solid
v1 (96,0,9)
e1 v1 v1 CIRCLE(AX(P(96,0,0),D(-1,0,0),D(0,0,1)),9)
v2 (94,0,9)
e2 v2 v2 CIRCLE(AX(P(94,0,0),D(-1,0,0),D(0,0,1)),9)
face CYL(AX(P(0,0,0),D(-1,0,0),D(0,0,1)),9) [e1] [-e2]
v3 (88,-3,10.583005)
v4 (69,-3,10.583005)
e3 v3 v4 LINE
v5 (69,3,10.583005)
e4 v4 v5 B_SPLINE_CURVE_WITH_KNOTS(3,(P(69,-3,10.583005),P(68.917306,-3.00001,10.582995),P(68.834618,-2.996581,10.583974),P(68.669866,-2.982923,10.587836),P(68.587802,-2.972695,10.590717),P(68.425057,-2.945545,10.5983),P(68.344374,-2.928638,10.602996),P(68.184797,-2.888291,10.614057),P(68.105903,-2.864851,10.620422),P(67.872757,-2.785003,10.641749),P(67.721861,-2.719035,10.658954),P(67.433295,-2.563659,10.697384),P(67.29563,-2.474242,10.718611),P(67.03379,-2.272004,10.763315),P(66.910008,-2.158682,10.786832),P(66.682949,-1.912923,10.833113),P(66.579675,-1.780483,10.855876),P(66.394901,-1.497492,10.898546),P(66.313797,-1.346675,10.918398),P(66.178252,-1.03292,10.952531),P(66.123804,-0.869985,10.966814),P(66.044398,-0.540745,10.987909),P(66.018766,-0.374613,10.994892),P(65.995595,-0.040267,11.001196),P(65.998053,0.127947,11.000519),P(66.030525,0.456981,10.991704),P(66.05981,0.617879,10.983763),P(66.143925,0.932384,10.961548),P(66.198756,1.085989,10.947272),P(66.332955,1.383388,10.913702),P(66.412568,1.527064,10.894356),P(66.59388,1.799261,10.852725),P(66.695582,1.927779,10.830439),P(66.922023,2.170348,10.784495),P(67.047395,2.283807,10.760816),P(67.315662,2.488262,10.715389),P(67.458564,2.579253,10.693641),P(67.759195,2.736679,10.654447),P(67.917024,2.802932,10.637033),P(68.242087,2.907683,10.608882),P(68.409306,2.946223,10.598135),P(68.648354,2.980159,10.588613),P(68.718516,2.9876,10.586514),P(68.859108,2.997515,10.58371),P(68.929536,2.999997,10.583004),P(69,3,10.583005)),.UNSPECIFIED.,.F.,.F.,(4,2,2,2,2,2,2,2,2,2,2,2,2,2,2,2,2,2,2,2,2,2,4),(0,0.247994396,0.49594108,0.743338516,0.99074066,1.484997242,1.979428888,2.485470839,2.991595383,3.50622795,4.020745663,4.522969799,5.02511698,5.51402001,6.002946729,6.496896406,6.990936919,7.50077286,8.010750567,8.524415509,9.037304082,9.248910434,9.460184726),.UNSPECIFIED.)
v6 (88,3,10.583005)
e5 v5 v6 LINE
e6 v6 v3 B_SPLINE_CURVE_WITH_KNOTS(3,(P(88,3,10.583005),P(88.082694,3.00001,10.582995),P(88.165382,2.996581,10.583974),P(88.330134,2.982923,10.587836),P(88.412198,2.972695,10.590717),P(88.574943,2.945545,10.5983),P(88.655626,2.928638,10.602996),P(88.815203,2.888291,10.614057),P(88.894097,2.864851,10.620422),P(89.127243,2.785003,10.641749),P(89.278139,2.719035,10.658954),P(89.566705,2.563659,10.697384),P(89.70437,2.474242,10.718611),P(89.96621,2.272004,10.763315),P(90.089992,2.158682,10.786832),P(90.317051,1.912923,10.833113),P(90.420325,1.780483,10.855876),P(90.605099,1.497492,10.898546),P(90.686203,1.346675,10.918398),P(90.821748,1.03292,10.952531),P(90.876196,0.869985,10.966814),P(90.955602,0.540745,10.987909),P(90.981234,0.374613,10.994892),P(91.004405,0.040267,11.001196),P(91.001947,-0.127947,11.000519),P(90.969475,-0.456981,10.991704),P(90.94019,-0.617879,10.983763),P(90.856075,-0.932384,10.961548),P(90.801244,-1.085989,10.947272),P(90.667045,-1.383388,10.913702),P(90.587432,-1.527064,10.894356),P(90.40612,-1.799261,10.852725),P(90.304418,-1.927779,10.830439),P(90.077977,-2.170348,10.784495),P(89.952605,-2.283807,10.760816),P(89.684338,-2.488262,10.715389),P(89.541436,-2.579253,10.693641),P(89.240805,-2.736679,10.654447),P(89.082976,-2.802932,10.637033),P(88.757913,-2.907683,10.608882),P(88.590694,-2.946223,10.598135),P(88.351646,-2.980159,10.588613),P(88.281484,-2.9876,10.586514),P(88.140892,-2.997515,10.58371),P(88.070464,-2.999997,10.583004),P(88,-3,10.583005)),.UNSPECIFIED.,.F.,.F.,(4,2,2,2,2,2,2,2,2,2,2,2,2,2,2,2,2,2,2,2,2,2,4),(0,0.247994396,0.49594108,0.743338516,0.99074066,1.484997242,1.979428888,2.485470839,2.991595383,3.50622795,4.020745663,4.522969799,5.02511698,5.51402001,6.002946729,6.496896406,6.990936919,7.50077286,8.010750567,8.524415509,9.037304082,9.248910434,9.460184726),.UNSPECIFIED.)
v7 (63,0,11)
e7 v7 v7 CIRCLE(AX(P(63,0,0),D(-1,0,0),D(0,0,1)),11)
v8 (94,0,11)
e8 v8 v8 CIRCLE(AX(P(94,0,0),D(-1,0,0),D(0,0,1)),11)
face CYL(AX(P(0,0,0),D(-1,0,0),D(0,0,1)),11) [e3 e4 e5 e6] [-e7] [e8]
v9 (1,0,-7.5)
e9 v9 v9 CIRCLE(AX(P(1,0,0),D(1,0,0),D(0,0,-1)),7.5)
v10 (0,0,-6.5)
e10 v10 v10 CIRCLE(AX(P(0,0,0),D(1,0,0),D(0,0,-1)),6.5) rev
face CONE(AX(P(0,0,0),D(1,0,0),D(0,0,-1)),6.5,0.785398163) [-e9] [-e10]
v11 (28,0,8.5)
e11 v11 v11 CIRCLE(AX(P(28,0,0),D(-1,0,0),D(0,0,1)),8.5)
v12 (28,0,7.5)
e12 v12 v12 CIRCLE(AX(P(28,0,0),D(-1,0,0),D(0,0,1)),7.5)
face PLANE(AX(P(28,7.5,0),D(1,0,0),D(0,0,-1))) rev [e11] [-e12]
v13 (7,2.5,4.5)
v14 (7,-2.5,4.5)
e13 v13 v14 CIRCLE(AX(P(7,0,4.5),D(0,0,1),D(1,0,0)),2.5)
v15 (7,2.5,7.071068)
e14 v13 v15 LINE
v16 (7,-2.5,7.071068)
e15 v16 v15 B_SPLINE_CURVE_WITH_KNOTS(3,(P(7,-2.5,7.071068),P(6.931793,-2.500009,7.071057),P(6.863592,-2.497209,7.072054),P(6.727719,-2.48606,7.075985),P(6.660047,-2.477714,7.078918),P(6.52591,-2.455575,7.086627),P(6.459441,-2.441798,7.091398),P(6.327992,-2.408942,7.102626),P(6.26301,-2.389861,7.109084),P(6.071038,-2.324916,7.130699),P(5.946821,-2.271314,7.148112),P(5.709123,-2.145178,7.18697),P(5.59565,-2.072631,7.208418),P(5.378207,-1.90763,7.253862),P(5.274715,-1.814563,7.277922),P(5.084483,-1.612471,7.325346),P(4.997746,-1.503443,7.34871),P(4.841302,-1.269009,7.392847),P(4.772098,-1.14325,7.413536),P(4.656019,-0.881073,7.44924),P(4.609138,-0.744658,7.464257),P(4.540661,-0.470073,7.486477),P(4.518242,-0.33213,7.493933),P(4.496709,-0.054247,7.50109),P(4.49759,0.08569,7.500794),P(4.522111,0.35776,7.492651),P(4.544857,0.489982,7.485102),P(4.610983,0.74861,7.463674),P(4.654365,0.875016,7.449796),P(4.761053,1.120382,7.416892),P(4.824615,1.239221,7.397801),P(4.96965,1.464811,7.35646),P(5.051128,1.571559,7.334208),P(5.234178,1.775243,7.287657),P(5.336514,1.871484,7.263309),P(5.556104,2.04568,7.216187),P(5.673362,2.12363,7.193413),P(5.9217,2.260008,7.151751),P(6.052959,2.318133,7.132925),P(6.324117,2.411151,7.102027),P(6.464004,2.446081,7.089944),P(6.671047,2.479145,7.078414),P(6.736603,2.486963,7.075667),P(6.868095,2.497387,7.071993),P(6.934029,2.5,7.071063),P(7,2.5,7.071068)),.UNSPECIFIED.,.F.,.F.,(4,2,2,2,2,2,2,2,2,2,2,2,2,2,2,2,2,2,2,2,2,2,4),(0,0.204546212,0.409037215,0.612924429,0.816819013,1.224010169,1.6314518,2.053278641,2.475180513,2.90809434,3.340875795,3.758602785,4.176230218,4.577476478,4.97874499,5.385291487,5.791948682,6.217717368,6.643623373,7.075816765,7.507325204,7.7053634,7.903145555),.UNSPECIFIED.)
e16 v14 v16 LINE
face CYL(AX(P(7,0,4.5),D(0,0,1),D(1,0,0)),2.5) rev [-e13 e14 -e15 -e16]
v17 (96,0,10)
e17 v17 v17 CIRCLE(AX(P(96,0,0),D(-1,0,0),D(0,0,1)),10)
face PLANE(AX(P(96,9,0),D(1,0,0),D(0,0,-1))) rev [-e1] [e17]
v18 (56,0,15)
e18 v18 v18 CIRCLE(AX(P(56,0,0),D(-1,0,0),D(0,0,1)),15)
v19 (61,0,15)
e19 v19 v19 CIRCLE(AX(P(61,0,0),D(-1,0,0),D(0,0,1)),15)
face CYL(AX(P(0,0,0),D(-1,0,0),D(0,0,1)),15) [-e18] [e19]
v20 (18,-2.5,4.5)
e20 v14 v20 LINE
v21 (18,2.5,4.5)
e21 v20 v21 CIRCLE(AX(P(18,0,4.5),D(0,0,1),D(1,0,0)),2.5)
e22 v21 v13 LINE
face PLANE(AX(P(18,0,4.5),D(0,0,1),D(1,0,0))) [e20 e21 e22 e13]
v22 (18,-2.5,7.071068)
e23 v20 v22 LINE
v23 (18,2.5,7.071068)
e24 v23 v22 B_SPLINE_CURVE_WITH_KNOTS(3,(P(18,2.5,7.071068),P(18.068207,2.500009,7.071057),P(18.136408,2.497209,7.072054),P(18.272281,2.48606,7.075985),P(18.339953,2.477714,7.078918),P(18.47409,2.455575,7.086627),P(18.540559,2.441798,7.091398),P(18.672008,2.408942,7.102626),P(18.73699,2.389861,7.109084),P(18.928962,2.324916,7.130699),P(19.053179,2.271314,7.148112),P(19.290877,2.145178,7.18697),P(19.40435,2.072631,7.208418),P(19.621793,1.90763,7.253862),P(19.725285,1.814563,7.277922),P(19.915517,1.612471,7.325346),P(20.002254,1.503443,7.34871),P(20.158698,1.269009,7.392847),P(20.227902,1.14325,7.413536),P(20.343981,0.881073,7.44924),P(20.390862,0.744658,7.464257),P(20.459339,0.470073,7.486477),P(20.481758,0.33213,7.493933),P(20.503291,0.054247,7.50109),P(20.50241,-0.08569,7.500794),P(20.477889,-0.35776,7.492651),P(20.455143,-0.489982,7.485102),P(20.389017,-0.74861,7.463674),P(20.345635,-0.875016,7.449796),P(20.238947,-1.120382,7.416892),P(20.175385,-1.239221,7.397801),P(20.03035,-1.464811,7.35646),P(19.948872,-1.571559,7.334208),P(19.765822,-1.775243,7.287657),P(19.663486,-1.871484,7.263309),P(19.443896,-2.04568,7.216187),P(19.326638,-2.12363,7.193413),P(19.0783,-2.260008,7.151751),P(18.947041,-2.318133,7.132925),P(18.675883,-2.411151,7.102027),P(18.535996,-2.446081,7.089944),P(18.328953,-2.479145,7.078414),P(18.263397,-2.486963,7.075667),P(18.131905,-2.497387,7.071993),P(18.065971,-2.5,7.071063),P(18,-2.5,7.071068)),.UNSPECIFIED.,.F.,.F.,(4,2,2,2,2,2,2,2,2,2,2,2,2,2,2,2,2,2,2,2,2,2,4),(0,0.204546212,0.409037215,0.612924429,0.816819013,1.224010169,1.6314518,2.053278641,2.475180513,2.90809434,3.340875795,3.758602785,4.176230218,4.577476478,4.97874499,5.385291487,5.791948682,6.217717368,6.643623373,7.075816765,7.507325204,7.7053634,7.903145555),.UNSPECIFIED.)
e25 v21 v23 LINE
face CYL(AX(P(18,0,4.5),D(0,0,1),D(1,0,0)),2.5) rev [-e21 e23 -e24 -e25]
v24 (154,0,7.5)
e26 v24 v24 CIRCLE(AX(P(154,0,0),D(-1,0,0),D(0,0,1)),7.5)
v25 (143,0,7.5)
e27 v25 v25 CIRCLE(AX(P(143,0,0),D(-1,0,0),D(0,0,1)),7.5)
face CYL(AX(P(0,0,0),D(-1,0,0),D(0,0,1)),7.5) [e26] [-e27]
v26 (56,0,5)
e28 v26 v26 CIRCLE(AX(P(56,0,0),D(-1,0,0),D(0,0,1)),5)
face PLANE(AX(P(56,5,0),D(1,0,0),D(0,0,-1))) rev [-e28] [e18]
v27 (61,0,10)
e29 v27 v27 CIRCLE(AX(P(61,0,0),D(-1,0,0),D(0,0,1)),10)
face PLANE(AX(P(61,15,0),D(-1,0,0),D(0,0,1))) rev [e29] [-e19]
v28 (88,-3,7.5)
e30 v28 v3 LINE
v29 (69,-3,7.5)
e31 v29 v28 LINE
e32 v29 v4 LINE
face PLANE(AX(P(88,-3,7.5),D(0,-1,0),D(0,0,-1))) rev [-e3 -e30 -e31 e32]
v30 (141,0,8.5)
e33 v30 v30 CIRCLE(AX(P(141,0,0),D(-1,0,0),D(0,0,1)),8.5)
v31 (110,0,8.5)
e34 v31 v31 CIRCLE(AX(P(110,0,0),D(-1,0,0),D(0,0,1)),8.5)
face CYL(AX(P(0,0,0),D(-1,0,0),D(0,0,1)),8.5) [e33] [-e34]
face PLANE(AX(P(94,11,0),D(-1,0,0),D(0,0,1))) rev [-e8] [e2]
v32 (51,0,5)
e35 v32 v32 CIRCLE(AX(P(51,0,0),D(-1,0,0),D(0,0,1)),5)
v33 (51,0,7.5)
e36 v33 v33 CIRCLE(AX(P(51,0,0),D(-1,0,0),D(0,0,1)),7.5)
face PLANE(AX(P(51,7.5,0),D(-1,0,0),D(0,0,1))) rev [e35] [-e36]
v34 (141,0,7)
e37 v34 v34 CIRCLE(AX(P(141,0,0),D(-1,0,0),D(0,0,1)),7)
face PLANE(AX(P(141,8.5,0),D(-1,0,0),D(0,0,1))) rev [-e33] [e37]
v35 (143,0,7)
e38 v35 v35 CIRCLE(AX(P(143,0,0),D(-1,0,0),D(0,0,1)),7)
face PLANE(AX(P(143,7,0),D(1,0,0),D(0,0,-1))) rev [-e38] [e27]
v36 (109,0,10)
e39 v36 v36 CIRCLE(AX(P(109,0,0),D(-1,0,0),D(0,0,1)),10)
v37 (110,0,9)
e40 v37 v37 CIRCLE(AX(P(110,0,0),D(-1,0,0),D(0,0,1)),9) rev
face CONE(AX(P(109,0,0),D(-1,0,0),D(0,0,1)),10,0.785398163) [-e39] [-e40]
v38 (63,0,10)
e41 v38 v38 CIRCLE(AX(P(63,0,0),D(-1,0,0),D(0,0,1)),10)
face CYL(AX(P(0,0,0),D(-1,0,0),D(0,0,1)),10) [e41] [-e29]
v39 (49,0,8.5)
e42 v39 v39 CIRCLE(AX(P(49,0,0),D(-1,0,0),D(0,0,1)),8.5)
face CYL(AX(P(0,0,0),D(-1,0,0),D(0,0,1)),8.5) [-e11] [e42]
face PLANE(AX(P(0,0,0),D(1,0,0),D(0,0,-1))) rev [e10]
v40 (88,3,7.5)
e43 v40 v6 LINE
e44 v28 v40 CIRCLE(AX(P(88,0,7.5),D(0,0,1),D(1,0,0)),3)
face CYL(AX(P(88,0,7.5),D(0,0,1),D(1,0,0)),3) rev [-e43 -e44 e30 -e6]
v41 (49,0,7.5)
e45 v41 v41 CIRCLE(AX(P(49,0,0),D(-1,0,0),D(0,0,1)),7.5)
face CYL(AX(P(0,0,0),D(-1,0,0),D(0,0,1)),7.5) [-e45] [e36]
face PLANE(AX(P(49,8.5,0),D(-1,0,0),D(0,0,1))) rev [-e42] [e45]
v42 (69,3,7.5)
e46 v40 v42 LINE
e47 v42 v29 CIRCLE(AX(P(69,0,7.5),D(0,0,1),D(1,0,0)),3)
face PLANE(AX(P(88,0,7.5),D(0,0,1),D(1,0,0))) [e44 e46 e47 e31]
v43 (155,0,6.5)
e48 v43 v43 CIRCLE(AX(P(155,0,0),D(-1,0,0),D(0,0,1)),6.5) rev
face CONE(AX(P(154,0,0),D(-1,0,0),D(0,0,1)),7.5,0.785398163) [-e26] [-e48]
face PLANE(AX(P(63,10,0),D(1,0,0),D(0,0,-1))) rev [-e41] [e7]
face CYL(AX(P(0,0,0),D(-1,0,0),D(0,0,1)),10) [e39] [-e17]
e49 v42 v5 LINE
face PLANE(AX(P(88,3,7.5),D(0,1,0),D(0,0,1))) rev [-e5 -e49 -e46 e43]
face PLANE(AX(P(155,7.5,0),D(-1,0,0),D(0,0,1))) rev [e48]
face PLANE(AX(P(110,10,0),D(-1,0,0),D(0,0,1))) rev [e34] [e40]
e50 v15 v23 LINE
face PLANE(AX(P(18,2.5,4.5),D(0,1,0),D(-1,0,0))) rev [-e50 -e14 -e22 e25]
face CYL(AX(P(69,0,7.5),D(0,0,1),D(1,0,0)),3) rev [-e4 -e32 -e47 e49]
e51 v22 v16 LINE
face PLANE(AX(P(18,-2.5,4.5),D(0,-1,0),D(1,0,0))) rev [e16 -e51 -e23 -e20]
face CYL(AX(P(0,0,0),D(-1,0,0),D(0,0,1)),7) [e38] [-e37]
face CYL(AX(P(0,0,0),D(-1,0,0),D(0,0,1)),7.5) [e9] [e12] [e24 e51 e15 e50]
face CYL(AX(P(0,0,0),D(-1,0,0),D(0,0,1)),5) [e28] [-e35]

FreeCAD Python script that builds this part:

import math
import FreeCAD as App
import Part
import Sketcher
Q = App.Units.Quantity


def edges_at(feature, points):
    """Names of the edges that pass closest to the given points."""
    edges = feature.Shape.Edges
    near = lambda p: min(range(len(edges)), key=lambda i: edges[i].distToShape(Part.Vertex(*p))[0])
    return sorted({f"Edge{near(p) + 1}" for p in points})

doc = App.newDocument("Part")
body = doc.addObject("PartDesign::Body", "Body")

# Sketch on XY plane
sketch1 = doc.addObject("Sketcher::SketchObject", "Sketch")
body.addObject(sketch1)
sketch1.AttachmentSupport = (doc.XY_Plane, [""])
sketch1.MapMode = "FlatFace"
sketch1.addGeometry([
    Part.LineSegment(App.Vector(0, 7.5, 0), App.Vector(0, 0, 0)),  # 0
    Part.LineSegment(App.Vector(0, 0, 0), App.Vector(155, 0, 0)),  # 1
    Part.LineSegment(App.Vector(155, 0, 0), App.Vector(155, 7.5, 0)),  # 2
    Part.LineSegment(App.Vector(155, 7.5, 0), App.Vector(143, 7.5, 0)),  # 3
    Part.LineSegment(App.Vector(143, 7.5, 0), App.Vector(143, 7, 0)),  # 4
    Part.LineSegment(App.Vector(143, 7, 0), App.Vector(141, 7, 0)),  # 5
    Part.LineSegment(App.Vector(141, 7, 0), App.Vector(141, 8.5, 0)),  # 6
    Part.LineSegment(App.Vector(141, 8.5, 0), App.Vector(110, 8.5, 0)),  # 7
    Part.LineSegment(App.Vector(110, 8.5, 0), App.Vector(110, 10, 0)),  # 8
    Part.LineSegment(App.Vector(110, 10, 0), App.Vector(96, 10, 0)),  # 9
    Part.LineSegment(App.Vector(96, 10, 0), App.Vector(96, 9, 0)),  # 10
    Part.LineSegment(App.Vector(96, 9, 0), App.Vector(94, 9, 0)),  # 11
    Part.LineSegment(App.Vector(94, 9, 0), App.Vector(94, 11, 0)),  # 12
    Part.LineSegment(App.Vector(94, 11, 0), App.Vector(63, 11, 0)),  # 13
    Part.LineSegment(App.Vector(63, 11, 0), App.Vector(63, 10, 0)),  # 14
    Part.LineSegment(App.Vector(63, 10, 0), App.Vector(61, 10, 0)),  # 15
    Part.LineSegment(App.Vector(61, 10, 0), App.Vector(61, 15, 0)),  # 16
    Part.LineSegment(App.Vector(61, 15, 0), App.Vector(56, 15, 0)),  # 17
    Part.LineSegment(App.Vector(56, 15, 0), App.Vector(56, 5, 0)),  # 18
    Part.LineSegment(App.Vector(56, 5, 0), App.Vector(51, 5, 0)),  # 19
    Part.LineSegment(App.Vector(51, 5, 0), App.Vector(51, 7.5, 0)),  # 20
    Part.LineSegment(App.Vector(51, 7.5, 0), App.Vector(49, 7.5, 0)),  # 21
    Part.LineSegment(App.Vector(49, 7.5, 0), App.Vector(49, 8.5, 0)),  # 22
    Part.LineSegment(App.Vector(49, 8.5, 0), App.Vector(28, 8.5, 0)),  # 23
    Part.LineSegment(App.Vector(28, 8.5, 0), App.Vector(28, 7.5, 0)),  # 24
    Part.LineSegment(App.Vector(28, 7.5, 0), App.Vector(0, 7.5, 0)),  # 25
], False)
sketch1.addConstraint([
    Sketcher.Constraint("Coincident", 0, 2, 1, 1),
    Sketcher.Constraint("Coincident", 1, 2, 2, 1),
    Sketcher.Constraint("Coincident", 2, 2, 3, 1),
    Sketcher.Constraint("Coincident", 3, 2, 4, 1),
    Sketcher.Constraint("Coincident", 4, 2, 5, 1),
    Sketcher.Constraint("Coincident", 5, 2, 6, 1),
    Sketcher.Constraint("Coincident", 6, 2, 7, 1),
    Sketcher.Constraint("Coincident", 7, 2, 8, 1),
    Sketcher.Constraint("Coincident", 8, 2, 9, 1),
    Sketcher.Constraint("Coincident", 9, 2, 10, 1),
    Sketcher.Constraint("Coincident", 10, 2, 11, 1),
    Sketcher.Constraint("Coincident", 11, 2, 12, 1),
    Sketcher.Constraint("Coincident", 12, 2, 13, 1),
    Sketcher.Constraint("Coincident", 13, 2, 14, 1),
    Sketcher.Constraint("Coincident", 14, 2, 15, 1),
    Sketcher.Constraint("Coincident", 15, 2, 16, 1),
    Sketcher.Constraint("Coincident", 16, 2, 17, 1),
    Sketcher.Constraint("Coincident", 17, 2, 18, 1),
    Sketcher.Constraint("Coincident", 18, 2, 19, 1),
    Sketcher.Constraint("Coincident", 19, 2, 20, 1),
    Sketcher.Constraint("Coincident", 20, 2, 21, 1),
    Sketcher.Constraint("Coincident", 21, 2, 22, 1),
    Sketcher.Constraint("Coincident", 22, 2, 23, 1),
    Sketcher.Constraint("Coincident", 23, 2, 24, 1),
    Sketcher.Constraint("Coincident", 24, 2, 25, 1),
    Sketcher.Constraint("Coincident", 25, 2, 0, 1),
    Sketcher.Constraint("Vertical", 0),
    Sketcher.Constraint("Horizontal", 1),
    Sketcher.Constraint("Vertical", 2),
    Sketcher.Constraint("Horizontal", 3),
    Sketcher.Constraint("Vertical", 4),
    Sketcher.Constraint("Horizontal", 5),
    Sketcher.Constraint("Vertical", 6),
    Sketcher.Constraint("Horizontal", 7),
    Sketcher.Constraint("Vertical", 8),
    Sketcher.Constraint("Horizontal", 9),
    Sketcher.Constraint("Vertical", 10),
    Sketcher.Constraint("Horizontal", 11),
    Sketcher.Constraint("Vertical", 12),
    Sketcher.Constraint("Horizontal", 13),
    Sketcher.Constraint("Vertical", 14),
    Sketcher.Constraint("Horizontal", 15),
    Sketcher.Constraint("Vertical", 16),
    Sketcher.Constraint("Horizontal", 17),
    Sketcher.Constraint("Vertical", 18),
    Sketcher.Constraint("Horizontal", 19),
    Sketcher.Constraint("Vertical", 20),
    Sketcher.Constraint("Horizontal", 21),
    Sketcher.Constraint("Vertical", 22),
    Sketcher.Constraint("Horizontal", 23),
    Sketcher.Constraint("Vertical", 24),
    Sketcher.Constraint("Horizontal", 25),
    Sketcher.Constraint("Coincident", 0, 2, -1, 1),
    Sketcher.Constraint("Horizontal", 9, 2, 14, 2),
    Sketcher.Constraint("Horizontal", 3, 2, 20, 2),
    Sketcher.Constraint("Horizontal", 7, 2, 22, 2),
    Sketcher.Constraint("Horizontal", 21, 2, 24, 2),
    Sketcher.Constraint("Equal", 5, 11),
    Sketcher.Constraint("Equal", 7, 13),
    Sketcher.Constraint("Equal", 11, 15),
    Sketcher.Constraint("Equal", 17, 19),
    Sketcher.Constraint("Equal", 15, 21),
    Sketcher.Constraint("Equal", 6, 8),
    Sketcher.Constraint("Equal", 21, 12),
    Sketcher.Constraint("Equal", 10, 14),
    Sketcher.Constraint("Equal", 19, 16),
    Sketcher.Constraint("Equal", 14, 22),
    Sketcher.Constraint("DistanceX", 1, 1, 1, 2, Q("155 mm")),
    Sketcher.Constraint("DistanceX", 3, 2, 3, 1, Q("12 mm")),
    Sketcher.Constraint("DistanceX", 5, 2, 5, 1, Q("2 mm")),
    Sketcher.Constraint("DistanceX", 7, 2, 7, 1, Q("31 mm")),
    Sketcher.Constraint("DistanceX", 9, 2, 9, 1, Q("14 mm")),
    Sketcher.Constraint("DistanceX", 17, 2, 17, 1, Q("5 mm")),
    Sketcher.Constraint("DistanceX", 23, 2, 23, 1, Q("21 mm")),
    Sketcher.Constraint("DistanceY", 18, 2, 18, 1, Q("10 mm")),
    Sketcher.Constraint("DistanceY", 0, 2, 0, 1, Q("7.5 mm")),
    Sketcher.Constraint("DistanceY", 4, 2, 4, 1, Q("0.5 mm")),
])
revolution = doc.addObject("PartDesign::Revolution", "Revolution")
body.addObject(revolution)
revolution.Profile = sketch1
revolution.ReferenceAxis = (sketch1, ["H_Axis"])
revolution.Angle = 360

# Sketch on XY plane
sketch2 = doc.addObject("Sketcher::SketchObject", "Sketch001")
body.addObject(sketch2)
sketch2.AttachmentSupport = (doc.XY_Plane, [""])
sketch2.MapMode = "FlatFace"
sketch2.AttachmentOffset = App.Placement(App.Vector(0, 0, 7.5), App.Rotation())
sketch2.addGeometry([
    Part.LineSegment(App.Vector(7, -2.5, 0), App.Vector(18, -2.5, 0)),
    Part.ArcOfCircle(Part.Circle(App.Vector(18, 0, 0), App.Vector(0, 0, 1), 2.5), math.radians(-90), math.radians(90)),
    Part.LineSegment(App.Vector(18, 2.5, 0), App.Vector(7, 2.5, 0)),
    Part.ArcOfCircle(Part.Circle(App.Vector(7, 0, 0), App.Vector(0, 0, 1), 2.5), math.radians(90), math.radians(270)),
], False)
sketch2.addConstraint([
    Sketcher.Constraint("Tangent", 0, 2, 1, 1),
    Sketcher.Constraint("Tangent", 1, 2, 2, 1),
    Sketcher.Constraint("Tangent", 2, 2, 3, 1),
    Sketcher.Constraint("Tangent", 3, 2, 0, 1),
    Sketcher.Constraint("Horizontal", 0),
    Sketcher.Constraint("Horizontal", 2),
    Sketcher.Constraint("PointOnObject", 1, 3, -1),
    Sketcher.Constraint("Radius", 1, Q("2.5 mm")),
    Sketcher.Constraint("DistanceX", 0, 1, 0, 2, Q("11 mm")),
    Sketcher.Constraint("DistanceX", -1, 1, 1, 3, Q("18 mm")),
])
pocket1 = doc.addObject("PartDesign::Pocket", "Pocket")
body.addObject(pocket1)
pocket1.Profile = sketch2
pocket1.Length = 3

# Sketch on XY plane
sketch3 = doc.addObject("Sketcher::SketchObject", "Sketch002")
body.addObject(sketch3)
sketch3.AttachmentSupport = (doc.XY_Plane, [""])
sketch3.MapMode = "FlatFace"
sketch3.AttachmentOffset = App.Placement(App.Vector(0, 0, 11), App.Rotation())
sketch3.addGeometry([
    Part.LineSegment(App.Vector(69, -3, 0), App.Vector(88, -3, 0)),
    Part.ArcOfCircle(Part.Circle(App.Vector(88, 0, 0), App.Vector(0, 0, 1), 3), math.radians(-90), math.radians(90)),
    Part.LineSegment(App.Vector(88, 3, 0), App.Vector(69, 3, 0)),
    Part.ArcOfCircle(Part.Circle(App.Vector(69, 0, 0), App.Vector(0, 0, 1), 3), math.radians(90), math.radians(270)),
], False)
sketch3.addConstraint([
    Sketcher.Constraint("Tangent", 0, 2, 1, 1),
    Sketcher.Constraint("Tangent", 1, 2, 2, 1),
    Sketcher.Constraint("Tangent", 2, 2, 3, 1),
    Sketcher.Constraint("Tangent", 3, 2, 0, 1),
    Sketcher.Constraint("Horizontal", 0),
    Sketcher.Constraint("Horizontal", 2),
    Sketcher.Constraint("PointOnObject", 1, 3, -1),
    Sketcher.Constraint("Radius", 1, Q("3 mm")),
    Sketcher.Constraint("DistanceX", 0, 1, 0, 2, Q("19 mm")),
    Sketcher.Constraint("DistanceX", -1, 1, 1, 3, Q("88 mm")),
])
pocket2 = doc.addObject("PartDesign::Pocket", "Pocket001")
body.addObject(pocket2)
pocket2.Profile = sketch3
pocket2.Length = 3.5
doc.recompute()

chamfer = doc.addObject("PartDesign::Chamfer", "Chamfer")
body.addObject(chamfer)
chamfer.Base = (pocket2, edges_at(pocket2, [(155, 0, -7.5), (110, 0, -10), (0, 0, -7.5)]))
chamfer.Size = 1

doc.recompute()
